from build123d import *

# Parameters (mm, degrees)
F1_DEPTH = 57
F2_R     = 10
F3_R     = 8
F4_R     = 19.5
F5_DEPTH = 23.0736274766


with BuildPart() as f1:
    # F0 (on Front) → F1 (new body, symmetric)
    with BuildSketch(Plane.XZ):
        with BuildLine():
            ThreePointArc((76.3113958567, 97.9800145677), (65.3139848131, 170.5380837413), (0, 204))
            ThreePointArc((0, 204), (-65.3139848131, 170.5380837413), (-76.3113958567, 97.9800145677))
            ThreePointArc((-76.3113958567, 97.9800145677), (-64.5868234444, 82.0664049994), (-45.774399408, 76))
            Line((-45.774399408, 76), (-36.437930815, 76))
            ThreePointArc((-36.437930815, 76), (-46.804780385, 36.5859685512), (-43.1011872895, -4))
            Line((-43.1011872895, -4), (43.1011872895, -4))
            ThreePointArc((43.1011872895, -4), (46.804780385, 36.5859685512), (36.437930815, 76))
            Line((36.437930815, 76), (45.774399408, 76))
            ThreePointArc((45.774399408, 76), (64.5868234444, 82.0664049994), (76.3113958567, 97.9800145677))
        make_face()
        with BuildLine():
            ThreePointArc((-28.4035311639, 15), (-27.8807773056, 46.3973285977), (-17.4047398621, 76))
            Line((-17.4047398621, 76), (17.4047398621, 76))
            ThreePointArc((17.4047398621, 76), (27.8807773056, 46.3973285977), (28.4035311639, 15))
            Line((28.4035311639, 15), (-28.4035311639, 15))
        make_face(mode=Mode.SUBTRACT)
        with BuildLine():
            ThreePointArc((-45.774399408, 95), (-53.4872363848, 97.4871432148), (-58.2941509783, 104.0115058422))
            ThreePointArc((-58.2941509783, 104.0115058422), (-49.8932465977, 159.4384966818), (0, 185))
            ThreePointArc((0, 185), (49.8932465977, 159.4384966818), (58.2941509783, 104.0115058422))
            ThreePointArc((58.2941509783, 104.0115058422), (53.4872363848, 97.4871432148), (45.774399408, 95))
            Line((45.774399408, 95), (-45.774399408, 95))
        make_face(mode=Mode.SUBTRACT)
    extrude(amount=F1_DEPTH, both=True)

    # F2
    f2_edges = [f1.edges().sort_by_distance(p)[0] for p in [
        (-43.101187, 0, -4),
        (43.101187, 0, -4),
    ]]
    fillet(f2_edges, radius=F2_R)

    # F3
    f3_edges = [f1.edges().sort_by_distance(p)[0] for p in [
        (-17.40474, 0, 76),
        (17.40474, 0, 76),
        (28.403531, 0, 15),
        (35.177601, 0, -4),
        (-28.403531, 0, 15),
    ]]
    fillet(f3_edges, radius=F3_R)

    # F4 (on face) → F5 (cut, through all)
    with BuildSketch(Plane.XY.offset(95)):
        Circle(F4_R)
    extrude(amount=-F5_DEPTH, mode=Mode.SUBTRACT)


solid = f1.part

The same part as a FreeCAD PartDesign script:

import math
import FreeCAD as App
import Part
import Sketcher

V = App.Vector
Q = App.Units.Quantity


def edges_at(feature, points):
    """Names of the edges that pass closest to the given points."""
    edges = feature.Shape.Edges
    near = lambda p: min(range(len(edges)), key=lambda i: edges[i].distToShape(Part.Vertex(*p))[0])
    return sorted({f"Edge{near(p) + 1}" for p in points})

doc = App.newDocument("Part")
body = doc.addObject("PartDesign::Body", "Body")

sketch1 = doc.addObject("Sketcher::SketchObject", "Sketch")
body.addObject(sketch1)
sketch1.AttachmentSupport = (doc.XZ_Plane, [""])
sketch1.MapMode = "FlatFace"
sketch1.addGeometry(Part.ArcOfCircle(Part.Circle(V(0, 123.52618, 0), V(0, 0, 1), 80.47382), math.radians(-18.508595), math.radians(198.508595)), False)
sketch1.addGeometry(Part.ArcOfCircle(Part.Circle(V(-45.774399, 108.202645, 0), V(0, 0, 1), 32.202645), math.radians(-161.491405), math.radians(-90)), False)
sketch1.addGeometry(Part.LineSegment(V(-45.774399, 76, 0), V(-36.437931, 76, 0)), False)
sketch1.addGeometry(Part.ArcOfCircle(Part.Circle(V(70.426381, 26.821702, 0), V(0, 0, 1), 117.637095), math.radians(155.288404), math.radians(195.189164)), False)
sketch1.addGeometry(Part.LineSegment(V(-43.101187, -4, 0), V(43.101187, -4, 0)), False)
sketch1.addGeometry(Part.ArcOfCircle(Part.Circle(V(-70.426381, 26.821702, 0), V(0, 0, 1), 117.637095), math.radians(-15.189164), math.radians(24.711596)), False)
sketch1.addGeometry(Part.LineSegment(V(36.437931, 76, 0), V(45.774399, 76, 0)), False)
sketch1.addGeometry(Part.ArcOfCircle(Part.Circle(V(45.774399, 108.202645, 0), V(0, 0, 1), 32.202645), math.radians(-90), math.radians(-18.508595)), False)
sketch1.addGeometry(Part.LineSegment(V(28.403531, 15, 0), V(-28.403531, 15, 0)), False)
sketch1.addGeometry(Part.ArcOfCircle(Part.Circle(V(68.069163, 29.096782, 0), V(0, 0, 1), 97.497179), math.radians(151.244523), math.radians(188.313338)), False)
sketch1.addGeometry(Part.LineSegment(V(-17.40474, 76, 0), V(17.40474, 76, 0)), False)
sketch1.addGeometry(Part.ArcOfCircle(Part.Circle(V(-68.069163, 29.096782, 0), V(0, 0, 1), 97.497179), math.radians(-8.313338), math.radians(28.755477)), False)
sketch1.addGeometry(Part.LineSegment(V(45.774399, 95, 0), V(-45.774399, 95, 0)), False)
sketch1.addGeometry(Part.ArcOfCircle(Part.Circle(V(-45.774399, 108.202645, 0), V(0, 0, 1), 13.202645), math.radians(-161.491405), math.radians(-90)), False)
sketch1.addGeometry(Part.ArcOfCircle(Part.Circle(V(0, 123.52618, 0), V(0, 0, 1), 61.47382), math.radians(90), math.radians(198.508595)), False)
sketch1.addGeometry(Part.ArcOfCircle(Part.Circle(V(0, 123.52618, 0), V(0, 0, 1), 61.47382), math.radians(-18.508595), math.radians(90)), False)
sketch1.addGeometry(Part.ArcOfCircle(Part.Circle(V(45.774399, 108.202645, 0), V(0, 0, 1), 13.202645), math.radians(-90), math.radians(-18.508595)), False)
sketch1.addConstraint(Sketcher.Constraint("Tangent", 0, 2, 1, 1))
sketch1.addConstraint(Sketcher.Constraint("Tangent", 1, 2, 2, 1))
sketch1.addConstraint(Sketcher.Constraint("Coincident", 2, 2, 3, 1))
sketch1.addConstraint(Sketcher.Constraint("Coincident", 3, 2, 4, 1))
sketch1.addConstraint(Sketcher.Constraint("Coincident", 4, 2, 5, 1))
sketch1.addConstraint(Sketcher.Constraint("Coincident", 5, 2, 6, 1))
sketch1.addConstraint(Sketcher.Constraint("Tangent", 6, 2, 7, 1))
sketch1.addConstraint(Sketcher.Constraint("Tangent", 7, 2, 0, 1))
sketch1.addConstraint(Sketcher.Constraint("Coincident", 8, 2, 9, 2))
sketch1.addConstraint(Sketcher.Constraint("Coincident", 9, 1, 10, 1))
sketch1.addConstraint(Sketcher.Constraint("Coincident", 10, 2, 11, 2))
sketch1.addConstraint(Sketcher.Constraint("Coincident", 11, 1, 8, 1))
sketch1.addConstraint(Sketcher.Constraint("Tangent", 12, 2, 13, 2))
sketch1.addConstraint(Sketcher.Constraint("Tangent", 13, 1, 14, 2))
sketch1.addConstraint(Sketcher.Constraint("Tangent", 14, 1, 15, 2))
sketch1.addConstraint(Sketcher.Constraint("Tangent", 15, 1, 16, 2))
sketch1.addConstraint(Sketcher.Constraint("Tangent", 16, 1, 12, 1))
sketch1.addConstraint(Sketcher.Constraint("Horizontal", 2))
sketch1.addConstraint(Sketcher.Constraint("Horizontal", 4))
sketch1.addConstraint(Sketcher.Constraint("Horizontal", 6))
sketch1.addConstraint(Sketcher.Constraint("Horizontal", 8))
sketch1.addConstraint(Sketcher.Constraint("Horizontal", 10))
sketch1.addConstraint(Sketcher.Constraint("Horizontal", 12))
sketch1.addConstraint(Sketcher.Constraint("Coincident", 13, 3, 1, 3))
sketch1.addConstraint(Sketcher.Constraint("Coincident", 14, 3, 0, 3))
sketch1.addConstraint(Sketcher.Constraint("Coincident", 16, 3, 7, 3))
sketch1.addConstraint(Sketcher.Constraint("Equal", 3, 5))
sketch1.addConstraint(Sketcher.Constraint("Equal", 1, 7))
sketch1.addConstraint(Sketcher.Constraint("Equal", 9, 11))
sketch1.addConstraint(Sketcher.Constraint("Equal", 14, 15))
sketch1.addConstraint(Sketcher.Constraint("Symmetric", 3, 3, 5, 3, -2))
sketch1.addConstraint(Sketcher.Constraint("Symmetric", 9, 3, 11, 3, -2))
sketch1.addConstraint(Sketcher.Constraint("PointOnObject", 0, 3, -2))
sketch1.addConstraint(Sketcher.Constraint("PointOnObject", 14, 1, -2))
sketch1.addConstraint(Sketcher.Constraint("Horizontal", 6, 2, 9, 1))
sketch1.addConstraint(Sketcher.Constraint("DistanceY", -1, 1, 1, 2, Q("76 mm")))
sketch1.addConstraint(Sketcher.Constraint("DistanceY", 3, 2, -1, 1, Q("4 mm")))
sketch1.addConstraint(Sketcher.Constraint("DistanceY", -1, 1, 8, 2, Q("15 mm")))
sketch1.addConstraint(Sketcher.Constraint("DistanceY", -1, 1, 12, 2, Q("95 mm")))
sketch1.addConstraint(Sketcher.Constraint("DistanceY", -1, 1, 14, 1, Q("185 mm")))
sketch1.addConstraint(Sketcher.Constraint("Radius", 0, Q("80.47382 mm")))
sketch1.addConstraint(Sketcher.Constraint("Radius", 9, Q("97.497179 mm")))
sketch1.addConstraint(Sketcher.Constraint("DistanceX", 12, 2, 12, 1, Q("91.548799 mm")))
sketch1.addConstraint(Sketcher.Constraint("Radius", 3, Q("117.637095 mm")))
sketch1.addConstraint(Sketcher.Constraint("DistanceX", 2, 1, 2, 2, Q("9.336469 mm")))
sketch1.addConstraint(Sketcher.Constraint("DistanceX", 10, 1, 10, 2, Q("34.80948 mm")))
sketch1.addConstraint(Sketcher.Constraint("DistanceY", 9, 3, 0, 3, Q("94.429398 mm")))
sketch1.addConstraint(Sketcher.Constraint("DistanceX", 4, 1, 4, 2, Q("86.202375 mm")))
pad1 = doc.addObject("PartDesign::Pad", "Pad")
body.addObject(pad1)
pad1.Profile = sketch1
pad1.Length = 114
pad1.Midplane = True
doc.recompute()

fillet = doc.addObject("PartDesign::Fillet", "Fillet")
body.addObject(fillet)
fillet.Base = (pad1, edges_at(pad1, [(-43.101, 0, -4), (43.101, 0, -4)]))
fillet.Radius = 10
doc.recompute()

fillet2 = doc.addObject("PartDesign::Fillet", "Fillet001")
body.addObject(fillet2)
fillet2.Base = (fillet, edges_at(fillet, [
    (-17.405, 0, 76),
    (17.405, 0, 76),
    (28.404, 0, 15),
    (35.178, 0, -4),
    (-28.404, 0, 15),
]))
fillet2.Radius = 8

sketch2 = doc.addObject("Sketcher::SketchObject", "Sketch001")
body.addObject(sketch2)
sketch2.AttachmentSupport = (doc.XY_Plane, [""])
sketch2.MapMode = "FlatFace"
sketch2.AttachmentOffset = App.Placement(V(0, 0, 95), App.Rotation())
sketch2.addGeometry(Part.Circle(V(0, 0, 0), V(0, 0, 1), 19.5), False)
sketch2.addConstraint(Sketcher.Constraint("Coincident", 0, 3, -1, 1))
sketch2.addConstraint(Sketcher.Constraint("Diameter", 0, Q("39 mm")))
pocket1 = doc.addObject("PartDesign::Pocket", "Pocket")
body.addObject(pocket1)
pocket1.Profile = sketch2
pocket1.Length = 23.073627

doc.recompute()
